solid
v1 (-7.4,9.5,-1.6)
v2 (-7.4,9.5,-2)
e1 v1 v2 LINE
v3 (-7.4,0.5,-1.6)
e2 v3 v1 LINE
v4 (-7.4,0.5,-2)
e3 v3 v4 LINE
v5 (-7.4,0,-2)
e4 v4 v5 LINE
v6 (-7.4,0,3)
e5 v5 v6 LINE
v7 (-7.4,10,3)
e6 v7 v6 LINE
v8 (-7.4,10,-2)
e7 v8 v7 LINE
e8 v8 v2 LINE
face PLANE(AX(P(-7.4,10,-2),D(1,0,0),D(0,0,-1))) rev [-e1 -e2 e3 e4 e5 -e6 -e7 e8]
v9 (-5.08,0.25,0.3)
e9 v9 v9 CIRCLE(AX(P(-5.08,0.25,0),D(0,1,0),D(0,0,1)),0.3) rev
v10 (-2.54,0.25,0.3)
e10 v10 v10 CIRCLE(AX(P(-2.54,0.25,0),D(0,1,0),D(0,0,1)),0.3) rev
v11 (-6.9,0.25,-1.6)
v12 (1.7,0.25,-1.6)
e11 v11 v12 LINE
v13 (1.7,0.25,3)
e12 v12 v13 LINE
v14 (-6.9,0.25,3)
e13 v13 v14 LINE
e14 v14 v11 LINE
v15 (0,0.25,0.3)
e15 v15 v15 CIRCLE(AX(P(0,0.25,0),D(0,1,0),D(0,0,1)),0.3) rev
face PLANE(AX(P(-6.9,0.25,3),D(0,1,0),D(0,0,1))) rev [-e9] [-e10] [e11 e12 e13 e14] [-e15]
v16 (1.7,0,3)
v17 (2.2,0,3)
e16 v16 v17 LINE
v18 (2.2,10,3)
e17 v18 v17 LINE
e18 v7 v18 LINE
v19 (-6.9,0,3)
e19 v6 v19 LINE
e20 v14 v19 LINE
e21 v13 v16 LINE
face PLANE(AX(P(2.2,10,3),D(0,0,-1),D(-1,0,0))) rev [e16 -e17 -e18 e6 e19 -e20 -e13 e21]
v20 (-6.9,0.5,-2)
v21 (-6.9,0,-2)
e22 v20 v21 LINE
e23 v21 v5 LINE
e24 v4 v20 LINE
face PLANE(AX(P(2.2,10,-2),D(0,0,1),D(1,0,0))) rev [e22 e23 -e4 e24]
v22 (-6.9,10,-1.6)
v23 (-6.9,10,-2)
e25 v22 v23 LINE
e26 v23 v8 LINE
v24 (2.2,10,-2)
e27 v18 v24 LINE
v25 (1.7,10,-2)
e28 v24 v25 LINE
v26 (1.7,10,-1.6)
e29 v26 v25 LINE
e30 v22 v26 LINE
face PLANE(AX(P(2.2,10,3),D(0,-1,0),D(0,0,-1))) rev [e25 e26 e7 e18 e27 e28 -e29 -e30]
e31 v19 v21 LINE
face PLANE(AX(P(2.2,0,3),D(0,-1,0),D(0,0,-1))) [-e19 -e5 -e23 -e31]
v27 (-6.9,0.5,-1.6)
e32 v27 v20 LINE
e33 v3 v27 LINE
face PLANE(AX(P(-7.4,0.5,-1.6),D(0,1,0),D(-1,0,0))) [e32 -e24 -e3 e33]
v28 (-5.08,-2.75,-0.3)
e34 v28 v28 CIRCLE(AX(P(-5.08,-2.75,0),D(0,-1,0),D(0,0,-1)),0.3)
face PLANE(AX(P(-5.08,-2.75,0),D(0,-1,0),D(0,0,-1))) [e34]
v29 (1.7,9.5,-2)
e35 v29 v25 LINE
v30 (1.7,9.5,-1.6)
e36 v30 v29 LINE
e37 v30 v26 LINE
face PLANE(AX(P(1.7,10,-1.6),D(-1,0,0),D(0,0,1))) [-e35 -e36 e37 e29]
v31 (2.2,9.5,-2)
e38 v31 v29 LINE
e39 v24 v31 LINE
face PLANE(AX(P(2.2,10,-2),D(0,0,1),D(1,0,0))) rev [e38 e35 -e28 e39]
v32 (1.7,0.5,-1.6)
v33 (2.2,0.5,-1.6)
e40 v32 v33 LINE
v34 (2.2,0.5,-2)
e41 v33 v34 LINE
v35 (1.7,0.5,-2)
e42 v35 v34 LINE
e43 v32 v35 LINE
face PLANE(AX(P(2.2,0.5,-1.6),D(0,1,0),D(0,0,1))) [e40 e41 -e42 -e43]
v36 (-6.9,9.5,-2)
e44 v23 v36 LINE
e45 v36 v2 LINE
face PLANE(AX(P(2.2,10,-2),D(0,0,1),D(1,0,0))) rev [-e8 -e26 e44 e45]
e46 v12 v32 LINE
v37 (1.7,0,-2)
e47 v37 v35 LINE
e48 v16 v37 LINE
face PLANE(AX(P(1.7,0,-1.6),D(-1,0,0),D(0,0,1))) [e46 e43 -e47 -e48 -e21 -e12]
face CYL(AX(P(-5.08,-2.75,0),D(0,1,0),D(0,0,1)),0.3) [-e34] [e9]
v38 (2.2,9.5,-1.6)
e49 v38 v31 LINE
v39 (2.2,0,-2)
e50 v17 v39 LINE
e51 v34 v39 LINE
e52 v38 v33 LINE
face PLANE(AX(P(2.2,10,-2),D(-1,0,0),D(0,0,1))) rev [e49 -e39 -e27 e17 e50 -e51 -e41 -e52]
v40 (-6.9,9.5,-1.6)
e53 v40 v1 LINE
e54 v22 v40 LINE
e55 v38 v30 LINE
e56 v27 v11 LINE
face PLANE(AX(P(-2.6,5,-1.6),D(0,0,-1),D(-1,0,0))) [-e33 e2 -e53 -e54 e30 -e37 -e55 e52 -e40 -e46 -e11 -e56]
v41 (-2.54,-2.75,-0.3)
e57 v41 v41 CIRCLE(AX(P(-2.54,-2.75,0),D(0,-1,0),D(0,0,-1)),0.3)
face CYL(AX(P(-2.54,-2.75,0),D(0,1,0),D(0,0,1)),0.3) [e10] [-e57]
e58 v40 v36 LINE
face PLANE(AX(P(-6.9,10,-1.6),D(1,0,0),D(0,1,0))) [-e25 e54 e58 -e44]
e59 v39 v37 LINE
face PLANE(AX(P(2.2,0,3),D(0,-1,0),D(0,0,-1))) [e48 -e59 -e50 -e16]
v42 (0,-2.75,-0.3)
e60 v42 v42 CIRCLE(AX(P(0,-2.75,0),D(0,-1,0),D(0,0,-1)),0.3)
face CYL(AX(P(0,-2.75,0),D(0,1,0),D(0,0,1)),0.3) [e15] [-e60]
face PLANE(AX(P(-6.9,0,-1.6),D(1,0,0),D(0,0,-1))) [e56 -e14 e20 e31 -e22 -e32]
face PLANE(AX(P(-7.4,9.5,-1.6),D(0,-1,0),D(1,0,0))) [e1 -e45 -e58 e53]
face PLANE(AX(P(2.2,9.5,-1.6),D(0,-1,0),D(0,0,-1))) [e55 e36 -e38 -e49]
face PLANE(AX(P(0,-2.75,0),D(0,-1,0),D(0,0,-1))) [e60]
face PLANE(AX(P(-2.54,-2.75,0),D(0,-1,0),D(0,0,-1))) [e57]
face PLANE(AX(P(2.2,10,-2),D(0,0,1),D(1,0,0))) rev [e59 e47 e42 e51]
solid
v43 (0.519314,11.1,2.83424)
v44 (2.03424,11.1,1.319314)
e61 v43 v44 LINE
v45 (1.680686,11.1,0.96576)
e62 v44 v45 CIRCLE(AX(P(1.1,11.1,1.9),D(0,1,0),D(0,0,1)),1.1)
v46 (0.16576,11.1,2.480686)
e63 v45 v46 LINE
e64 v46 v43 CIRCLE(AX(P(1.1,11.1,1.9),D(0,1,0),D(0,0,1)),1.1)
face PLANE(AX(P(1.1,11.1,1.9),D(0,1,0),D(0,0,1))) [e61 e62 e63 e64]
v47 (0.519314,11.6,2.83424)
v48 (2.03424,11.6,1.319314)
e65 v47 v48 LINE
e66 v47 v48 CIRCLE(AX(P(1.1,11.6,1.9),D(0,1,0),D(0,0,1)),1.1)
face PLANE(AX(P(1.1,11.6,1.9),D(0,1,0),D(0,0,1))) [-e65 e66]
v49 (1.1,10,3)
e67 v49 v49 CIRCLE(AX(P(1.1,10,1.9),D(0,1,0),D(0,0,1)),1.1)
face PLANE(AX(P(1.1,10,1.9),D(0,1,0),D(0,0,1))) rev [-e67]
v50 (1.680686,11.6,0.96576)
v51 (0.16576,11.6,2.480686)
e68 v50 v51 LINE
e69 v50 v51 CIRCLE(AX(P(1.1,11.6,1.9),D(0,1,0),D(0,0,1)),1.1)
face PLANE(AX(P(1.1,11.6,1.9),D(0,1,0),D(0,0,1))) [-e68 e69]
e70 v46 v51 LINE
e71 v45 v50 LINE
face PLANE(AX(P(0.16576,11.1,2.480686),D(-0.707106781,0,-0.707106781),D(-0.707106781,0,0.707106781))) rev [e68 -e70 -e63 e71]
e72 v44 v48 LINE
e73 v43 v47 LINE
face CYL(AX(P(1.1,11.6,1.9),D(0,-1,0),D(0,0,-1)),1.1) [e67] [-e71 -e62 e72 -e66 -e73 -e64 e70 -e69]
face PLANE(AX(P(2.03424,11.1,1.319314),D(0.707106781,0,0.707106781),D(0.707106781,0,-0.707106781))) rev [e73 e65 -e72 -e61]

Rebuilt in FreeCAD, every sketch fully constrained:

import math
import FreeCAD as App
import Part
import Sketcher

V = App.Vector
Q = App.Units.Quantity


def add_polygon(sketch, points):
    """Adds a closed chain of lines whose ends are joined by coincident constraints."""
    first, n = sketch.GeometryCount, len(points)
    for a, b in zip(points, points[1:] + points[:1]):
        sketch.addGeometry(Part.LineSegment(App.Vector(*a, 0), App.Vector(*b, 0)), False)
    for i in range(n):
        sketch.addConstraint(Sketcher.Constraint("Coincident", first + i, 2, first + (i + 1) % n, 1))

doc = App.newDocument("Part")
body = doc.addObject("PartDesign::Body", "Body")

# Sketch on XZ plane
sketch1 = doc.addObject("Sketcher::SketchObject", "Sketch")
body.addObject(sketch1)
sketch1.AttachmentSupport = (doc.XZ_Plane, [""])
sketch1.MapMode = "FlatFace"
add_polygon(sketch1, [(-7.4, -2), (-7.4, 3), (2.2, 3), (2.2, -2)])  # lines 0-3
sketch1.addConstraint([
    Sketcher.Constraint("Vertical", 0),
    Sketcher.Constraint("Horizontal", 1),
    Sketcher.Constraint("Vertical", 2),
    Sketcher.Constraint("Horizontal", 3),
    Sketcher.Constraint("DistanceY", 0, 1, 0, 2, 5.0),
    Sketcher.Constraint("DistanceX", 1, 1, 1, 2, 9.6),
    Sketcher.Constraint("DistanceY", -1, 1, 0, 2, 3.0),
    Sketcher.Constraint("DistanceX", 0, 2, -1, 1, 7.4),
])
pad1 = doc.addObject("PartDesign::Pad", "Pad")
body.addObject(pad1)
pad1.Profile = sketch1
pad1.Length = 10
pad1.Reversed = True

# Sketch on XY plane
sketch2 = doc.addObject("Sketcher::SketchObject", "Sketch001")
body.addObject(sketch2)
sketch2.AttachmentSupport = (doc.XY_Plane, [""])
sketch2.MapMode = "FlatFace"
sketch2.AttachmentOffset = App.Placement(V(0, 0, -2), App.Rotation())
add_polygon(sketch2, [(4.674, 12.474), (4.674, -2.474), (-9.874, -2.474), (-9.874, 12.474)])  # lines 0-3
add_polygon(sketch2, [(1.7, 0), (2.2, 0), (2.2, 0.5), (1.7, 0.5)])  # lines 4-7
add_polygon(sketch2, [(-7.4, 0), (-6.9, 0), (-6.9, 0.5), (-7.4, 0.5)])  # lines 8-11
add_polygon(sketch2, [(1.7, 9.5), (2.2, 9.5), (2.2, 10), (1.7, 10)])  # lines 12-15
add_polygon(sketch2, [(-7.4, 9.5), (-6.9, 9.5), (-6.9, 10), (-7.4, 10)])  # lines 16-19
sketch2.addConstraint([
    Sketcher.Constraint("Vertical", 0),
    Sketcher.Constraint("Horizontal", 1),
    Sketcher.Constraint("Vertical", 2),
    Sketcher.Constraint("Horizontal", 3),
    Sketcher.Constraint("Horizontal", 4),
    Sketcher.Constraint("Vertical", 5),
    Sketcher.Constraint("Horizontal", 6),
    Sketcher.Constraint("Vertical", 7),
    Sketcher.Constraint("Horizontal", 8),
    Sketcher.Constraint("Vertical", 9),
    Sketcher.Constraint("Horizontal", 10),
    Sketcher.Constraint("Vertical", 11),
    Sketcher.Constraint("Horizontal", 12),
    Sketcher.Constraint("Vertical", 13),
    Sketcher.Constraint("Horizontal", 14),
    Sketcher.Constraint("Vertical", 15),
    Sketcher.Constraint("Horizontal", 16),
    Sketcher.Constraint("Vertical", 17),
    Sketcher.Constraint("Horizontal", 18),
    Sketcher.Constraint("Vertical", 19),
    Sketcher.Constraint("PointOnObject", 4, 2, -1),
    Sketcher.Constraint("PointOnObject", 8, 2, -1),
    Sketcher.Constraint("Horizontal", 6, 2, 9, 2),
    Sketcher.Constraint("Horizontal", 15, 2, 16, 2),
    Sketcher.Constraint("Horizontal", 14, 2, 17, 2),
    Sketcher.Constraint("Vertical", 5, 2, 12, 2),
    Sketcher.Constraint("Vertical", 7, 2, 14, 2),
    Sketcher.Constraint("Vertical", 9, 2, 16, 2),
    Sketcher.Constraint("Vertical", 11, 2, 18, 2),
    Sketcher.Constraint("Equal", 6, 8),
    Sketcher.Constraint("Equal", 18, 5),
    Sketcher.Constraint("Equal", 11, 13),
    Sketcher.Constraint("DistanceX", 4, 1, 4, 2, 0.5),
    Sketcher.Constraint("DistanceY", -1, 1, 13, 2, 10.0),
    Sketcher.Constraint("DistanceX", -1, 1, 4, 2, 2.2),
    Sketcher.Constraint("DistanceX", 8, 2, -1, 1, 6.9),
    Sketcher.Constraint("DistanceX", 1, 2, 1, 1, 14.548),
    Sketcher.Constraint("DistanceY", 0, 2, 0, 1, 14.948),
    Sketcher.Constraint("DistanceX", -1, 1, 0, 2, 4.674),
    Sketcher.Constraint("DistanceY", 0, 2, -1, 1, 2.474),
])
pocket1 = doc.addObject("PartDesign::Pocket", "Pocket")
body.addObject(pocket1)
pocket1.Profile = sketch2
pocket1.Length = 0.4
pocket1.Reversed = True

# Sketch on XZ plane
sketch3 = doc.addObject("Sketcher::SketchObject", "Sketch002")
body.addObject(sketch3)
sketch3.AttachmentSupport = (doc.XZ_Plane, [""])
sketch3.MapMode = "FlatFace"
add_polygon(sketch3, [(-6.9, 3), (-6.9, -1.6), (1.7, -1.6), (1.7, 3)])  # lines 0-3
sketch3.addConstraint([
    Sketcher.Constraint("Vertical", 0),
    Sketcher.Constraint("Horizontal", 1),
    Sketcher.Constraint("Vertical", 2),
    Sketcher.Constraint("Horizontal", 3),
    Sketcher.Constraint("DistanceX", 1, 1, 1, 2, 8.6),
    Sketcher.Constraint("DistanceY", 0, 2, 0, 1, 4.6),
    Sketcher.Constraint("DistanceY", -1, 1, 2, 2, 3.0),
    Sketcher.Constraint("DistanceX", 0, 2, -1, 1, 6.9),
])
pocket2 = doc.addObject("PartDesign::Pocket", "Pocket001")
body.addObject(pocket2)
pocket2.Profile = sketch3
pocket2.Length = 0.25

# Sketch on XZ plane
sketch4 = doc.addObject("Sketcher::SketchObject", "Sketch003")
body.addObject(sketch4)
sketch4.AttachmentSupport = (doc.XZ_Plane, [""])
sketch4.MapMode = "FlatFace"
sketch4.AttachmentOffset = App.Placement(V(0, 0, -0.25), App.Rotation())
sketch4.addGeometry([
    Part.Circle(V(0, 0, 0), V(0, 0, 1), 0.3),
    Part.Circle(V(-2.54, 0, 0), V(0, 0, 1), 0.3),
    Part.Circle(V(-5.08, 0, 0), V(0, 0, 1), 0.3),
], False)
sketch4.addConstraint([
    Sketcher.Constraint("Coincident", 0, 3, -1, 1),
    Sketcher.Constraint("Equal", 0, 1),
    Sketcher.Constraint("Equal", 1, 2),
    Sketcher.Constraint("PointOnObject", 1, 3, -1),
    Sketcher.Constraint("PointOnObject", 2, 3, -1),
    Sketcher.Constraint("Diameter", 0, 0.6),
    Sketcher.Constraint("DistanceX", 1, 3, -1, 1, 2.54),
    Sketcher.Constraint("DistanceX", 2, 3, -1, 1, 5.08),
])
pad2 = doc.addObject("PartDesign::Pad", "Pad001")
body.addObject(pad2)
pad2.Profile = sketch4
pad2.Length = 3
body2 = doc.addObject("PartDesign::Body", "Body001")

# Sketch on XZ plane
sketch5 = doc.addObject("Sketcher::SketchObject", "Sketch004")
body2.addObject(sketch5)
sketch5.AttachmentSupport = (doc.getObject("XZ_Plane001"), [""])
sketch5.MapMode = "FlatFace"
sketch5.AttachmentOffset = App.Placement(V(0, 0, -10), App.Rotation())
sketch5.addGeometry(Part.Circle(V(1.1, 1.9, 0), V(0, 0, 1), 1.1), False)
sketch5.addConstraint([
    Sketcher.Constraint("Diameter", 0, 2.2),
    Sketcher.Constraint("DistanceX", -1, 1, 0, 3, 1.1),
    Sketcher.Constraint("DistanceY", -1, 1, 0, 3, 1.9),
])
pad3 = doc.addObject("PartDesign::Pad", "Pad002")
body2.addObject(pad3)
pad3.Profile = sketch5
pad3.Length = 1.6
pad3.Reversed = True

# Sketch on XZ plane
sketch6 = doc.addObject("Sketcher::SketchObject", "Sketch005")
body2.addObject(sketch6)
sketch6.AttachmentSupport = (doc.getObject("XZ_Plane001"), [""])
sketch6.MapMode = "FlatFace"
sketch6.AttachmentOffset = App.Placement(V(0, 0, -11.6), App.Rotation())
sketch6.addGeometry([
    Part.LineSegment(V(1.680686, 0.96576, 0), V(0.16576, 2.480686, 0)),
    Part.ArcOfCircle(Part.Circle(V(1.1, 1.9, 0), V(0, 0, 1), 1.1), math.radians(121.863442), math.radians(148.136558)),
    Part.LineSegment(V(0.519314, 2.83424, 0), V(2.03424, 1.319314, 0)),
    Part.ArcOfCircle(Part.Circle(V(1.1, 1.9, 0), V(0, 0, 1), 1.1), math.radians(-58.136558), math.radians(-31.863442)),
], False)
sketch6.addConstraint([
    Sketcher.Constraint("Coincident", 0, 2, 1, 2),
    Sketcher.Constraint("Coincident", 1, 1, 2, 1),
    Sketcher.Constraint("Coincident", 2, 2, 3, 2),
    Sketcher.Constraint("Coincident", 3, 1, 0, 1),
    Sketcher.Constraint("Coincident", 3, 3, 1, 3),
    Sketcher.Constraint("Equal", 1, 3),
    Sketcher.Constraint("Parallel", 0, 2),
    Sketcher.Constraint("Equal", 0, 2),
    Sketcher.Constraint("Radius", 1, 1.1),
    Sketcher.Constraint("Angle", 0, Q("135 deg")),
    Sketcher.Constraint("DistanceX", -1, 1, 1, 3, 1.1),
    Sketcher.Constraint("DistanceY", -1, 1, 1, 3, 1.9),
    Sketcher.Constraint("Distance", 0, 2.142429),
])
pocket3 = doc.addObject("PartDesign::Pocket", "Pocket002")
body2.addObject(pocket3)
pocket3.Profile = sketch6
pocket3.Length = 0.5
pocket3.Reversed = True

doc.recompute()
